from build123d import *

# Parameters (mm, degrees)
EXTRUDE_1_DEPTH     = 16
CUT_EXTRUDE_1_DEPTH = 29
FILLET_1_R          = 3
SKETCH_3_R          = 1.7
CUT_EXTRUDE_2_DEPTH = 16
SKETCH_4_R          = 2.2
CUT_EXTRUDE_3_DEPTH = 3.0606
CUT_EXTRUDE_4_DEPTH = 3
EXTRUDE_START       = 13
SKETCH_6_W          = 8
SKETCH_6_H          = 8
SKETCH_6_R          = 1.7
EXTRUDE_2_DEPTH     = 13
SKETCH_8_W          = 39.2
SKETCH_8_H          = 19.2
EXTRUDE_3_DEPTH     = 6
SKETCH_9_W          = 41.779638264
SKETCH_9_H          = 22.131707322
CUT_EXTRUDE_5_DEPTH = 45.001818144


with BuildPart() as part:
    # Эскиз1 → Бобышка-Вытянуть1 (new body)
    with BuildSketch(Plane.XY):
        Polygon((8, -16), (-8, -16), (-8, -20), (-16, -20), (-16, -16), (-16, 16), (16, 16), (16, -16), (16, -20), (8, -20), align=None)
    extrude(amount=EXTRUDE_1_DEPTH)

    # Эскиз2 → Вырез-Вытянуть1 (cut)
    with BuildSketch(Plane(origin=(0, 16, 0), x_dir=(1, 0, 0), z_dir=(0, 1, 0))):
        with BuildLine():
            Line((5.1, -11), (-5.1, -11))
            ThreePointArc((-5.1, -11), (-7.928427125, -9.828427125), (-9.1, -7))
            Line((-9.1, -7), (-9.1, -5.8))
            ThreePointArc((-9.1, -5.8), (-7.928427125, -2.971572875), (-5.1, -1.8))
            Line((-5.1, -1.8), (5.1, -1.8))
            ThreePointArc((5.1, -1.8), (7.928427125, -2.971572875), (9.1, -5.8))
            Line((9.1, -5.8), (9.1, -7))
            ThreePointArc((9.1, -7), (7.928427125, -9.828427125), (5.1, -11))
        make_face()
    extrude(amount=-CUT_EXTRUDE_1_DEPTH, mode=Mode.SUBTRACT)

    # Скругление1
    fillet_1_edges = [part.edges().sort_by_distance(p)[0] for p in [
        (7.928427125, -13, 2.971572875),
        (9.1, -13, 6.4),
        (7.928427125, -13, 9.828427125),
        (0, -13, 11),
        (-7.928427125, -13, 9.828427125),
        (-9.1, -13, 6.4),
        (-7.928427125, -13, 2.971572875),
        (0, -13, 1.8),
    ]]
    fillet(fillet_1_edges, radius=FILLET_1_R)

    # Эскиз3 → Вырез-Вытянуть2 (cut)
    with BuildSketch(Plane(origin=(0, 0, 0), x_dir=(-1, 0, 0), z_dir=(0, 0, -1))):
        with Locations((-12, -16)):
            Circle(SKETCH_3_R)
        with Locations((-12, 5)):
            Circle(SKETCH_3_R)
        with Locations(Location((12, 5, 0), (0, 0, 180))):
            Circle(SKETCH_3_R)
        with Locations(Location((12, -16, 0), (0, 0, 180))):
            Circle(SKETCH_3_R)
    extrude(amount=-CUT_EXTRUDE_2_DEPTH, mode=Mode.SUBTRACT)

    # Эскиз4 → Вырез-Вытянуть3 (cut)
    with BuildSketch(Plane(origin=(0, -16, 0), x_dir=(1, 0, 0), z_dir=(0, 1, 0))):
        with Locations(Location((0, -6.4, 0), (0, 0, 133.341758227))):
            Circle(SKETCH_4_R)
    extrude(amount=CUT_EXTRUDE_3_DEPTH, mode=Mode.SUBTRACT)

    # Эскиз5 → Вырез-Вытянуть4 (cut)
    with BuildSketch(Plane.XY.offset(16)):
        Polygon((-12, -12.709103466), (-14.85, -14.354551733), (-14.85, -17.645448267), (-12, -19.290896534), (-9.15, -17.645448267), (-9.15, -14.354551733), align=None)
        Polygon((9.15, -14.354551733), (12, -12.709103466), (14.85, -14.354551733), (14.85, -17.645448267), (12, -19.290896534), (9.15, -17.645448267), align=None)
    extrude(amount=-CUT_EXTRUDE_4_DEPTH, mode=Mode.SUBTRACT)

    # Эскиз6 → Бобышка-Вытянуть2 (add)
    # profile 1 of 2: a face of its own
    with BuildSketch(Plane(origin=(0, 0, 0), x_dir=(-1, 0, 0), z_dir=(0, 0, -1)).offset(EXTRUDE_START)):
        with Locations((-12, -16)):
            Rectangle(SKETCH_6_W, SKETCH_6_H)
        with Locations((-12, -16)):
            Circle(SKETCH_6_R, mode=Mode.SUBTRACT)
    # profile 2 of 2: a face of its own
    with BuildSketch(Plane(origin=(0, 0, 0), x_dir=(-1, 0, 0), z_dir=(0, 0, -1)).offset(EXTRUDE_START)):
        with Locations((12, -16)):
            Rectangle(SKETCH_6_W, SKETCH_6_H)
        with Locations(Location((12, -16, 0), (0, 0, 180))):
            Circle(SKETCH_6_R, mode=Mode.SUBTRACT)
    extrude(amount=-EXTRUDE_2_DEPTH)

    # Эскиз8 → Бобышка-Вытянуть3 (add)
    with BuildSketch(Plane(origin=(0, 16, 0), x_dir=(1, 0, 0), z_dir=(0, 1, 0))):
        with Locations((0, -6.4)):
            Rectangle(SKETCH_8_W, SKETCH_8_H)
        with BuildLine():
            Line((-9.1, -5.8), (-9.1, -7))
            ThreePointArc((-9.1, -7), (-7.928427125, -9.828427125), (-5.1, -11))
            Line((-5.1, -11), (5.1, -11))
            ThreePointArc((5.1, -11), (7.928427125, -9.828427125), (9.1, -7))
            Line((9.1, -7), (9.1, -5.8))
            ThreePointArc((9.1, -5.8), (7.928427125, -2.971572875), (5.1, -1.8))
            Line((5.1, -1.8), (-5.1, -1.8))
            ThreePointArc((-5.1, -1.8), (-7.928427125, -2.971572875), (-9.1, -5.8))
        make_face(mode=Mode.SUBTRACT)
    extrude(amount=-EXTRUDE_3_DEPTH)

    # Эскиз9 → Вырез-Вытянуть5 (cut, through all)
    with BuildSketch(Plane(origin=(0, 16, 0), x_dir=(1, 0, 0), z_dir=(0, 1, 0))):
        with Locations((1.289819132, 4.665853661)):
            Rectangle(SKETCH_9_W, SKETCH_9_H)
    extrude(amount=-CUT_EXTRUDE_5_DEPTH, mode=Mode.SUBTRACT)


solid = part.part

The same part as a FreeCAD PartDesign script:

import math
import FreeCAD as App
import Part
import Sketcher
Q = App.Units.Quantity


def edges_at(feature, points):
    """Names of the edges that pass closest to the given points."""
    edges = feature.Shape.Edges
    near = lambda p: min(range(len(edges)), key=lambda i: edges[i].distToShape(Part.Vertex(*p))[0])
    return sorted({f"Edge{near(p) + 1}" for p in points})

doc = App.newDocument("Part")
params = doc.addObject("Spreadsheet::Sheet", "Params")
for row, (alias, value) in enumerate([
    ("sketch1_width", "16 mm"),
    ("sketch1_width2", "8 mm"),
    ("sketch1_height", "4 mm"),
    ("sketch1_height2", "36 mm"),
    ("pad1_length", "16 mm"),
    ("sketch2_radius", "4 mm"),
    ("sketch2_width", "10.2 mm"),
    ("sketch2_height", "1.2 mm"),
    ("pocket1_length", "29 mm"),
    ("fillet_radius", "3 mm"),
    ("sketch3_diameter", "3.4 mm"),
    ("pocket2_length", "16 mm"),
    ("sketch4_diameter", "4.4 mm"),
    ("pocket3_length", "3.0606 mm"),
    ("pocket4_length", "3 mm"),
    ("sketch6_diameter", "3.4 mm"),
    ("sketch6_width", "8 mm"),
    ("pad2_length", "13 mm"),
    ("sketch7_radius", "4 mm"),
    ("sketch7_width", "39.2 mm"),
    ("sketch7_width2", "10.2 mm"),
    ("sketch7_height", "19.2 mm"),
    ("sketch7_height2", "1.2 mm"),
    ("pad3_length", "6 mm"),
], start=1):
    params.set(f"A{row}", alias)
    params.set(f"B{row}", "=" + value)
    params.setAlias(f"B{row}", alias)

body = doc.addObject("PartDesign::Body", "Body")

sketch1 = body.newObject("Sketcher::SketchObject", "Sketch")
sketch1.AttachmentSupport = (doc.getObject("XY_Plane"), [""])
sketch1.MapMode = "FlatFace"
sketch1.addGeometry([
    Part.LineSegment(App.Vector(-8, -16, 0), App.Vector(8, -16, 0)),
    Part.LineSegment(App.Vector(8, -16, 0), App.Vector(8, -20, 0)),
    Part.LineSegment(App.Vector(8, -20, 0), App.Vector(16, -20, 0)),
    Part.LineSegment(App.Vector(16, -20, 0), App.Vector(16, 16, 0)),
    Part.LineSegment(App.Vector(16, 16, 0), App.Vector(-16, 16, 0)),
    Part.LineSegment(App.Vector(-16, 16, 0), App.Vector(-16, -20, 0)),
    Part.LineSegment(App.Vector(-16, -20, 0), App.Vector(-8, -20, 0)),
    Part.LineSegment(App.Vector(-8, -20, 0), App.Vector(-8, -16, 0)),
], False)
sketch1.addConstraint([
    Sketcher.Constraint("Coincident", 0, 2, 1, 1),
    Sketcher.Constraint("Coincident", 1, 2, 2, 1),
    Sketcher.Constraint("Coincident", 2, 2, 3, 1),
    Sketcher.Constraint("Coincident", 3, 2, 4, 1),
    Sketcher.Constraint("Coincident", 4, 2, 5, 1),
    Sketcher.Constraint("Coincident", 5, 2, 6, 1),
    Sketcher.Constraint("Coincident", 6, 2, 7, 1),
    Sketcher.Constraint("Coincident", 7, 2, 0, 1),
    Sketcher.Constraint("Horizontal", 0),
    Sketcher.Constraint("Vertical", 1),
    Sketcher.Constraint("Horizontal", 2),
    Sketcher.Constraint("Vertical", 3),
    Sketcher.Constraint("Horizontal", 4),
    Sketcher.Constraint("Vertical", 5),
    Sketcher.Constraint("Horizontal", 6),
    Sketcher.Constraint("Vertical", 7),
    Sketcher.Constraint("Symmetric", 2, 2, 5, 2, -2),
    Sketcher.Constraint("Equal", 2, 6),
    Sketcher.Constraint("DistanceX", 0, 1, 0, 2, 16.0),
    Sketcher.Constraint("DistanceX", 2, 1, 2, 2, 8.0),
    Sketcher.Constraint("DistanceY", 1, 2, 1, 1, 4.0),
    Sketcher.Constraint("DistanceY", 3, 1, 3, 2, 36.0),
    Sketcher.Constraint("DistanceY", 0, 2, -1, 1, 16.0),
])
sketch1.setExpression("Constraints[18]", "Params.sketch1_width")
sketch1.setExpression("Constraints[19]", "Params.sketch1_width2")
sketch1.setExpression("Constraints[20]", "Params.sketch1_height")
sketch1.setExpression("Constraints[21]", "Params.sketch1_height2")
pad1 = body.newObject("PartDesign::Pad", "Pad")
pad1.Profile = sketch1
pad1.setExpression("Length", "Params.pad1_length")

sketch2 = body.newObject("Sketcher::SketchObject", "Sketch001")
sketch2.AttachmentSupport = (doc.getObject("XZ_Plane"), [""])
sketch2.MapMode = "FlatFace"
sketch2.AttachmentOffset = App.Placement(App.Vector(0, 0, -16), App.Rotation())
sketch2.addGeometry([
    Part.LineSegment(App.Vector(-5.1, 11, 0), App.Vector(5.1, 11, 0)),
    Part.ArcOfCircle(Part.Circle(App.Vector(5.1, 7, 0), App.Vector(0, 0, 1), 4), math.radians(0), math.radians(90)),
    Part.LineSegment(App.Vector(9.1, 7, 0), App.Vector(9.1, 5.8, 0)),
    Part.ArcOfCircle(Part.Circle(App.Vector(5.1, 5.8, 0), App.Vector(0, 0, 1), 4), math.radians(-90), math.radians(0)),
    Part.LineSegment(App.Vector(5.1, 1.8, 0), App.Vector(-5.1, 1.8, 0)),
    Part.ArcOfCircle(Part.Circle(App.Vector(-5.1, 5.8, 0), App.Vector(0, 0, 1), 4), math.radians(180), math.radians(270)),
    Part.LineSegment(App.Vector(-9.1, 5.8, 0), App.Vector(-9.1, 7, 0)),
    Part.ArcOfCircle(Part.Circle(App.Vector(-5.1, 7, 0), App.Vector(0, 0, 1), 4), math.radians(90), math.radians(180)),
], False)
sketch2.addConstraint([
    Sketcher.Constraint("Tangent", 0, 2, 1, 2),
    Sketcher.Constraint("Tangent", 1, 1, 2, 1),
    Sketcher.Constraint("Tangent", 2, 2, 3, 2),
    Sketcher.Constraint("Tangent", 3, 1, 4, 1),
    Sketcher.Constraint("Tangent", 4, 2, 5, 2),
    Sketcher.Constraint("Tangent", 5, 1, 6, 1),
    Sketcher.Constraint("Tangent", 6, 2, 7, 2),
    Sketcher.Constraint("Tangent", 7, 1, 0, 1),
    Sketcher.Constraint("Horizontal", 0),
    Sketcher.Constraint("Vertical", 2),
    Sketcher.Constraint("Horizontal", 4),
    Sketcher.Constraint("Vertical", 6),
    Sketcher.Constraint("Equal", 1, 3),
    Sketcher.Constraint("Equal", 3, 5),
    Sketcher.Constraint("Equal", 5, 7),
    Sketcher.Constraint("Radius", 1, 4.0),
    Sketcher.Constraint("DistanceX", 0, 1, 0, 2, 10.2),
    Sketcher.Constraint("DistanceY", 2, 2, 2, 1, 1.2),
    Sketcher.Constraint("DistanceY", -1, 1, 1, 3, 7.0),
    Sketcher.Constraint("DistanceX", -1, 1, 1, 3, 5.1),
])
sketch2.setExpression("Constraints[15]", "Params.sketch2_radius")
sketch2.setExpression("Constraints[16]", "Params.sketch2_width")
sketch2.setExpression("Constraints[17]", "Params.sketch2_height")
pocket1 = body.newObject("PartDesign::Pocket", "Pocket")
pocket1.Profile = sketch2
pocket1.setExpression("Length", "Params.pocket1_length")
pocket1.Reversed = True
doc.recompute()

fillet = body.newObject("PartDesign::Fillet", "Fillet")
fillet.Base = (pocket1, edges_at(pocket1, [
    (7.928, -13, 2.972),
    (9.1, -13, 6.4),
    (7.928, -13, 9.828),
    (0, -13, 11),
    (-7.928, -13, 9.828),
    (-9.1, -13, 6.4),
    (-7.928, -13, 2.972),
    (0, -13, 1.8),
]))
fillet.setExpression("Radius", "Params.fillet_radius")

sketch3 = body.newObject("Sketcher::SketchObject", "Sketch002")
sketch3.AttachmentSupport = (doc.getObject("XY_Plane"), [""])
sketch3.MapMode = "FlatFace"
sketch3.addGeometry([
    Part.Circle(App.Vector(12, -16, 0), App.Vector(0, 0, 1), 1.7),
    Part.Circle(App.Vector(12, 5, 0), App.Vector(0, 0, 1), 1.7),
    Part.Circle(App.Vector(-12, 5, 0), App.Vector(0, 0, 1), 1.7),
    Part.Circle(App.Vector(-12, -16, 0), App.Vector(0, 0, 1), 1.7),
], False)
sketch3.addConstraint([
    Sketcher.Constraint("Equal", 0, 1),
    Sketcher.Constraint("Equal", 1, 2),
    Sketcher.Constraint("Equal", 2, 3),
    Sketcher.Constraint("Symmetric", 1, 3, 2, 3, -2),
    Sketcher.Constraint("Symmetric", 0, 3, 3, 3, -2),
    Sketcher.Constraint("Vertical", 0, 3, 1, 3),
    Sketcher.Constraint("Diameter", 0, 3.4),
    Sketcher.Constraint("DistanceX", -1, 1, 0, 3, 12.0),
    Sketcher.Constraint("DistanceY", 0, 3, -1, 1, 16.0),
    Sketcher.Constraint("DistanceY", -1, 1, 1, 3, 5.0),
])
sketch3.setExpression("Constraints[6]", "Params.sketch3_diameter")
pocket2 = body.newObject("PartDesign::Pocket", "Pocket001")
pocket2.Profile = sketch3
pocket2.setExpression("Length", "Params.pocket2_length")
pocket2.Reversed = True

sketch4 = body.newObject("Sketcher::SketchObject", "Sketch003")
sketch4.AttachmentSupport = (doc.getObject("XZ_Plane"), [""])
sketch4.MapMode = "FlatFace"
sketch4.AttachmentOffset = App.Placement(App.Vector(0, 0, 16), App.Rotation())
sketch4.addGeometry(Part.Circle(App.Vector(0, 6.4, 0), App.Vector(0, 0, 1), 2.2), False)
sketch4.addConstraint([
    Sketcher.Constraint("PointOnObject", 0, 3, -2),
    Sketcher.Constraint("Diameter", 0, 4.4),
    Sketcher.Constraint("DistanceY", -1, 1, 0, 3, 6.4),
])
sketch4.setExpression("Constraints[1]", "Params.sketch4_diameter")
pocket3 = body.newObject("PartDesign::Pocket", "Pocket002")
pocket3.Profile = sketch4
pocket3.setExpression("Length", "Params.pocket3_length")

sketch5 = body.newObject("Sketcher::SketchObject", "Sketch004")
sketch5.AttachmentSupport = (doc.getObject("XY_Plane"), [""])
sketch5.MapMode = "FlatFace"
sketch5.AttachmentOffset = App.Placement(App.Vector(0, 0, 16), App.Rotation())
sketch5.addGeometry([
    Part.LineSegment(App.Vector(-12, -12.709103, 0), App.Vector(-14.85, -14.354552, 0)),
    Part.LineSegment(App.Vector(-14.85, -14.354552, 0), App.Vector(-14.85, -17.645448, 0)),
    Part.LineSegment(App.Vector(-14.85, -17.645448, 0), App.Vector(-12, -19.290897, 0)),
    Part.LineSegment(App.Vector(-12, -19.290897, 0), App.Vector(-9.15, -17.645448, 0)),
    Part.LineSegment(App.Vector(-9.15, -17.645448, 0), App.Vector(-9.15, -14.354552, 0)),
    Part.LineSegment(App.Vector(-9.15, -14.354552, 0), App.Vector(-12, -12.709103, 0)),
    Part.LineSegment(App.Vector(12, -12.709103, 0), App.Vector(9.15, -14.354552, 0)),
    Part.LineSegment(App.Vector(9.15, -14.354552, 0), App.Vector(9.15, -17.645448, 0)),
    Part.LineSegment(App.Vector(9.15, -17.645448, 0), App.Vector(12, -19.290897, 0)),
    Part.LineSegment(App.Vector(12, -19.290897, 0), App.Vector(14.85, -17.645448, 0)),
    Part.LineSegment(App.Vector(14.85, -17.645448, 0), App.Vector(14.85, -14.354552, 0)),
    Part.LineSegment(App.Vector(14.85, -14.354552, 0), App.Vector(12, -12.709103, 0)),
], False)
sketch5.addConstraint([
    Sketcher.Constraint("Coincident", 0, 2, 1, 1),
    Sketcher.Constraint("Coincident", 1, 2, 2, 1),
    Sketcher.Constraint("Coincident", 2, 2, 3, 1),
    Sketcher.Constraint("Coincident", 3, 2, 4, 1),
    Sketcher.Constraint("Coincident", 4, 2, 5, 1),
    Sketcher.Constraint("Coincident", 5, 2, 0, 1),
    Sketcher.Constraint("Coincident", 6, 2, 7, 1),
    Sketcher.Constraint("Coincident", 7, 2, 8, 1),
    Sketcher.Constraint("Coincident", 8, 2, 9, 1),
    Sketcher.Constraint("Coincident", 9, 2, 10, 1),
    Sketcher.Constraint("Coincident", 10, 2, 11, 1),
    Sketcher.Constraint("Coincident", 11, 2, 6, 1),
    Sketcher.Constraint("Vertical", 1),
    Sketcher.Constraint("Vertical", 4),
    Sketcher.Constraint("Vertical", 7),
    Sketcher.Constraint("Vertical", 10),
    Sketcher.Constraint("Symmetric", 4, 2, 6, 2, -2),
    Sketcher.Constraint("Symmetric", 2, 2, 8, 2, -2),
    Sketcher.Constraint("Symmetric", 1, 2, 9, 2, -2),
    Sketcher.Constraint("Symmetric", 5, 2, 11, 2, -2),
    Sketcher.Constraint("Parallel", 0, 3),
    Sketcher.Constraint("Parallel", 2, 5),
    Sketcher.Constraint("Parallel", 3, 6),
    Sketcher.Constraint("Parallel", 5, 8),
    Sketcher.Constraint("Parallel", 8, 11),
    Sketcher.Constraint("Horizontal", 1, 2, 3, 2),
    Sketcher.Constraint("Horizontal", 0, 2, 4, 2),
    Sketcher.Constraint("Angle", 0, Q("-150 deg")),
    Sketcher.Constraint("DistanceX", 2, 2, -1, 1, 12.0),
    Sketcher.Constraint("DistanceX", 1, 2, 3, 2, 5.7),
    Sketcher.Constraint("DistanceY", 1, 2, 1, 1, 3.290897),
    Sketcher.Constraint("DistanceY", 0, 2, -1, 1, 14.354552),
])
pocket4 = body.newObject("PartDesign::Pocket", "Pocket003")
pocket4.Profile = sketch5
pocket4.setExpression("Length", "Params.pocket4_length")

sketch6 = body.newObject("Sketcher::SketchObject", "Sketch005")
sketch6.AttachmentSupport = (doc.getObject("XY_Plane"), [""])
sketch6.MapMode = "FlatFace"
sketch6.AttachmentOffset = App.Placement(App.Vector(0, 0, -13), App.Rotation())
sketch6.addGeometry([
    Part.LineSegment(App.Vector(16, -12, 0), App.Vector(16, -20, 0)),
    Part.LineSegment(App.Vector(16, -20, 0), App.Vector(8, -20, 0)),
    Part.LineSegment(App.Vector(8, -20, 0), App.Vector(8, -12, 0)),
    Part.LineSegment(App.Vector(8, -12, 0), App.Vector(16, -12, 0)),
    Part.Circle(App.Vector(12, -16, 0), App.Vector(0, 0, 1), 1.7),
    Part.LineSegment(App.Vector(-8, -12, 0), App.Vector(-8, -20, 0)),
    Part.LineSegment(App.Vector(-8, -20, 0), App.Vector(-16, -20, 0)),
    Part.LineSegment(App.Vector(-16, -20, 0), App.Vector(-16, -12, 0)),
    Part.LineSegment(App.Vector(-16, -12, 0), App.Vector(-8, -12, 0)),
    Part.Circle(App.Vector(-12, -16, 0), App.Vector(0, 0, 1), 1.7),
], False)
sketch6.addConstraint([
    Sketcher.Constraint("Coincident", 0, 2, 1, 1),
    Sketcher.Constraint("Coincident", 1, 2, 2, 1),
    Sketcher.Constraint("Coincident", 2, 2, 3, 1),
    Sketcher.Constraint("Coincident", 3, 2, 0, 1),
    Sketcher.Constraint("Coincident", 5, 2, 6, 1),
    Sketcher.Constraint("Coincident", 6, 2, 7, 1),
    Sketcher.Constraint("Coincident", 7, 2, 8, 1),
    Sketcher.Constraint("Coincident", 8, 2, 5, 1),
    Sketcher.Constraint("Vertical", 0),
    Sketcher.Constraint("Horizontal", 1),
    Sketcher.Constraint("Vertical", 2),
    Sketcher.Constraint("Horizontal", 3),
    Sketcher.Constraint("Vertical", 5),
    Sketcher.Constraint("Horizontal", 6),
    Sketcher.Constraint("Vertical", 7),
    Sketcher.Constraint("Horizontal", 8),
    Sketcher.Constraint("Equal", 4, 9),
    Sketcher.Constraint("Symmetric", 4, 3, 9, 3, -2),
    Sketcher.Constraint("Symmetric", 1, 2, 5, 2, -2),
    Sketcher.Constraint("Symmetric", 3, 2, 7, 2, -2),
    Sketcher.Constraint("Equal", 8, 0),
    Sketcher.Constraint("Diameter", 4, 3.4),
    Sketcher.Constraint("DistanceX", 1, 2, 1, 1, 8.0),
    Sketcher.Constraint("DistanceX", -1, 1, 4, 3, 12.0),
    Sketcher.Constraint("DistanceY", 4, 3, -1, 1, 16.0),
    Sketcher.Constraint("DistanceX", -1, 1, 0, 2, 16.0),
    Sketcher.Constraint("DistanceY", 0, 2, -1, 1, 20.0),
])
sketch6.setExpression("Constraints[21]", "Params.sketch6_diameter")
sketch6.setExpression("Constraints[22]", "Params.sketch6_width")
pad2 = body.newObject("PartDesign::Pad", "Pad001")
pad2.Profile = sketch6
pad2.setExpression("Length", "Params.pad2_length")

sketch7 = body.newObject("Sketcher::SketchObject", "Sketch006")
sketch7.AttachmentSupport = (doc.getObject("XZ_Plane"), [""])
sketch7.MapMode = "FlatFace"
sketch7.AttachmentOffset = App.Placement(App.Vector(0, 0, -16), App.Rotation())
sketch7.addGeometry([
    Part.LineSegment(App.Vector(-19.6, -3.2, 0), App.Vector(-19.6, 16, 0)),
    Part.LineSegment(App.Vector(-19.6, 16, 0), App.Vector(19.6, 16, 0)),
    Part.LineSegment(App.Vector(19.6, 16, 0), App.Vector(19.6, -3.2, 0)),
    Part.LineSegment(App.Vector(19.6, -3.2, 0), App.Vector(-19.6, -3.2, 0)),
    Part.LineSegment(App.Vector(-9.1, 7, 0), App.Vector(-9.1, 5.8, 0)),
    Part.ArcOfCircle(Part.Circle(App.Vector(-5.1, 5.8, 0), App.Vector(0, 0, 1), 4), math.radians(180), math.radians(270)),
    Part.LineSegment(App.Vector(-5.1, 1.8, 0), App.Vector(5.1, 1.8, 0)),
    Part.ArcOfCircle(Part.Circle(App.Vector(5.1, 5.8, 0), App.Vector(0, 0, 1), 4), math.radians(-90), math.radians(0)),
    Part.LineSegment(App.Vector(9.1, 5.8, 0), App.Vector(9.1, 7, 0)),
    Part.ArcOfCircle(Part.Circle(App.Vector(5.1, 7, 0), App.Vector(0, 0, 1), 4), math.radians(0), math.radians(90)),
    Part.LineSegment(App.Vector(5.1, 11, 0), App.Vector(-5.1, 11, 0)),
    Part.ArcOfCircle(Part.Circle(App.Vector(-5.1, 7, 0), App.Vector(0, 0, 1), 4), math.radians(90), math.radians(180)),
], False)
sketch7.addConstraint([
    Sketcher.Constraint("Coincident", 0, 2, 1, 1),
    Sketcher.Constraint("Coincident", 1, 2, 2, 1),
    Sketcher.Constraint("Coincident", 2, 2, 3, 1),
    Sketcher.Constraint("Coincident", 3, 2, 0, 1),
    Sketcher.Constraint("Tangent", 4, 2, 5, 1),
    Sketcher.Constraint("Tangent", 5, 2, 6, 1),
    Sketcher.Constraint("Tangent", 6, 2, 7, 1),
    Sketcher.Constraint("Tangent", 7, 2, 8, 1),
    Sketcher.Constraint("Tangent", 8, 2, 9, 1),
    Sketcher.Constraint("Tangent", 9, 2, 10, 1),
    Sketcher.Constraint("Tangent", 10, 2, 11, 1),
    Sketcher.Constraint("Tangent", 11, 2, 4, 1),
    Sketcher.Constraint("Vertical", 0),
    Sketcher.Constraint("Horizontal", 1),
    Sketcher.Constraint("Vertical", 2),
    Sketcher.Constraint("Horizontal", 3),
    Sketcher.Constraint("Vertical", 4),
    Sketcher.Constraint("Horizontal", 6),
    Sketcher.Constraint("Vertical", 8),
    Sketcher.Constraint("Horizontal", 10),
    Sketcher.Constraint("Equal", 5, 7),
    Sketcher.Constraint("Equal", 7, 9),
    Sketcher.Constraint("Equal", 9, 11),
    Sketcher.Constraint("Radius", 5, 4.0),
    Sketcher.Constraint("DistanceX", 1, 1, 1, 2, 39.2),
    Sketcher.Constraint("DistanceX", 6, 1, 6, 2, 10.2),
    Sketcher.Constraint("DistanceY", 0, 1, 0, 2, 19.2),
    Sketcher.Constraint("DistanceY", 4, 2, 4, 1, 1.2),
    Sketcher.Constraint("DistanceY", -1, 1, 9, 3, 7.0),
    Sketcher.Constraint("DistanceY", -1, 1, 0, 2, 16.0),
    Sketcher.Constraint("DistanceX", 5, 3, -1, 1, 5.1),
    Sketcher.Constraint("DistanceX", 0, 2, -1, 1, 19.6),
])
sketch7.setExpression("Constraints[23]", "Params.sketch7_radius")
sketch7.setExpression("Constraints[24]", "Params.sketch7_width")
sketch7.setExpression("Constraints[25]", "Params.sketch7_width2")
sketch7.setExpression("Constraints[26]", "Params.sketch7_height")
sketch7.setExpression("Constraints[27]", "Params.sketch7_height2")
pad3 = body.newObject("PartDesign::Pad", "Pad002")
pad3.Profile = sketch7
pad3.setExpression("Length", "Params.pad3_length")

sketch8 = body.newObject("Sketcher::SketchObject", "Sketch007")
sketch8.AttachmentSupport = (doc.getObject("XZ_Plane"), [""])
sketch8.MapMode = "FlatFace"
sketch8.AttachmentOffset = App.Placement(App.Vector(0, 0, -16), App.Rotation())
sketch8.addGeometry([
    Part.LineSegment(App.Vector(-19.6, -15.731707, 0), App.Vector(-19.6, 6.4, 0)),
    Part.LineSegment(App.Vector(-19.6, 6.4, 0), App.Vector(22.179638, 6.4, 0)),
    Part.LineSegment(App.Vector(22.179638, 6.4, 0), App.Vector(22.179638, -15.731707, 0)),
    Part.LineSegment(App.Vector(22.179638, -15.731707, 0), App.Vector(-19.6, -15.731707, 0)),
], False)
sketch8.addConstraint([
    Sketcher.Constraint("Coincident", 0, 2, 1, 1),
    Sketcher.Constraint("Coincident", 1, 2, 2, 1),
    Sketcher.Constraint("Coincident", 2, 2, 3, 1),
    Sketcher.Constraint("Coincident", 3, 2, 0, 1),
    Sketcher.Constraint("Vertical", 0),
    Sketcher.Constraint("Horizontal", 1),
    Sketcher.Constraint("Vertical", 2),
    Sketcher.Constraint("Horizontal", 3),
    Sketcher.Constraint("DistanceX", 0, 2, -1, 1, 19.6),
    Sketcher.Constraint("DistanceY", -1, 1, 0, 2, 6.4),
    Sketcher.Constraint("DistanceX", 1, 1, 1, 2, 41.779638),
    Sketcher.Constraint("DistanceY", 0, 1, 0, 2, 22.131707),
])
pocket5 = body.newObject("PartDesign::Pocket", "Pocket004")
pocket5.Profile = sketch8
pocket5.Type = "ThroughAll"
pocket5.Reversed = True

doc.recompute()
